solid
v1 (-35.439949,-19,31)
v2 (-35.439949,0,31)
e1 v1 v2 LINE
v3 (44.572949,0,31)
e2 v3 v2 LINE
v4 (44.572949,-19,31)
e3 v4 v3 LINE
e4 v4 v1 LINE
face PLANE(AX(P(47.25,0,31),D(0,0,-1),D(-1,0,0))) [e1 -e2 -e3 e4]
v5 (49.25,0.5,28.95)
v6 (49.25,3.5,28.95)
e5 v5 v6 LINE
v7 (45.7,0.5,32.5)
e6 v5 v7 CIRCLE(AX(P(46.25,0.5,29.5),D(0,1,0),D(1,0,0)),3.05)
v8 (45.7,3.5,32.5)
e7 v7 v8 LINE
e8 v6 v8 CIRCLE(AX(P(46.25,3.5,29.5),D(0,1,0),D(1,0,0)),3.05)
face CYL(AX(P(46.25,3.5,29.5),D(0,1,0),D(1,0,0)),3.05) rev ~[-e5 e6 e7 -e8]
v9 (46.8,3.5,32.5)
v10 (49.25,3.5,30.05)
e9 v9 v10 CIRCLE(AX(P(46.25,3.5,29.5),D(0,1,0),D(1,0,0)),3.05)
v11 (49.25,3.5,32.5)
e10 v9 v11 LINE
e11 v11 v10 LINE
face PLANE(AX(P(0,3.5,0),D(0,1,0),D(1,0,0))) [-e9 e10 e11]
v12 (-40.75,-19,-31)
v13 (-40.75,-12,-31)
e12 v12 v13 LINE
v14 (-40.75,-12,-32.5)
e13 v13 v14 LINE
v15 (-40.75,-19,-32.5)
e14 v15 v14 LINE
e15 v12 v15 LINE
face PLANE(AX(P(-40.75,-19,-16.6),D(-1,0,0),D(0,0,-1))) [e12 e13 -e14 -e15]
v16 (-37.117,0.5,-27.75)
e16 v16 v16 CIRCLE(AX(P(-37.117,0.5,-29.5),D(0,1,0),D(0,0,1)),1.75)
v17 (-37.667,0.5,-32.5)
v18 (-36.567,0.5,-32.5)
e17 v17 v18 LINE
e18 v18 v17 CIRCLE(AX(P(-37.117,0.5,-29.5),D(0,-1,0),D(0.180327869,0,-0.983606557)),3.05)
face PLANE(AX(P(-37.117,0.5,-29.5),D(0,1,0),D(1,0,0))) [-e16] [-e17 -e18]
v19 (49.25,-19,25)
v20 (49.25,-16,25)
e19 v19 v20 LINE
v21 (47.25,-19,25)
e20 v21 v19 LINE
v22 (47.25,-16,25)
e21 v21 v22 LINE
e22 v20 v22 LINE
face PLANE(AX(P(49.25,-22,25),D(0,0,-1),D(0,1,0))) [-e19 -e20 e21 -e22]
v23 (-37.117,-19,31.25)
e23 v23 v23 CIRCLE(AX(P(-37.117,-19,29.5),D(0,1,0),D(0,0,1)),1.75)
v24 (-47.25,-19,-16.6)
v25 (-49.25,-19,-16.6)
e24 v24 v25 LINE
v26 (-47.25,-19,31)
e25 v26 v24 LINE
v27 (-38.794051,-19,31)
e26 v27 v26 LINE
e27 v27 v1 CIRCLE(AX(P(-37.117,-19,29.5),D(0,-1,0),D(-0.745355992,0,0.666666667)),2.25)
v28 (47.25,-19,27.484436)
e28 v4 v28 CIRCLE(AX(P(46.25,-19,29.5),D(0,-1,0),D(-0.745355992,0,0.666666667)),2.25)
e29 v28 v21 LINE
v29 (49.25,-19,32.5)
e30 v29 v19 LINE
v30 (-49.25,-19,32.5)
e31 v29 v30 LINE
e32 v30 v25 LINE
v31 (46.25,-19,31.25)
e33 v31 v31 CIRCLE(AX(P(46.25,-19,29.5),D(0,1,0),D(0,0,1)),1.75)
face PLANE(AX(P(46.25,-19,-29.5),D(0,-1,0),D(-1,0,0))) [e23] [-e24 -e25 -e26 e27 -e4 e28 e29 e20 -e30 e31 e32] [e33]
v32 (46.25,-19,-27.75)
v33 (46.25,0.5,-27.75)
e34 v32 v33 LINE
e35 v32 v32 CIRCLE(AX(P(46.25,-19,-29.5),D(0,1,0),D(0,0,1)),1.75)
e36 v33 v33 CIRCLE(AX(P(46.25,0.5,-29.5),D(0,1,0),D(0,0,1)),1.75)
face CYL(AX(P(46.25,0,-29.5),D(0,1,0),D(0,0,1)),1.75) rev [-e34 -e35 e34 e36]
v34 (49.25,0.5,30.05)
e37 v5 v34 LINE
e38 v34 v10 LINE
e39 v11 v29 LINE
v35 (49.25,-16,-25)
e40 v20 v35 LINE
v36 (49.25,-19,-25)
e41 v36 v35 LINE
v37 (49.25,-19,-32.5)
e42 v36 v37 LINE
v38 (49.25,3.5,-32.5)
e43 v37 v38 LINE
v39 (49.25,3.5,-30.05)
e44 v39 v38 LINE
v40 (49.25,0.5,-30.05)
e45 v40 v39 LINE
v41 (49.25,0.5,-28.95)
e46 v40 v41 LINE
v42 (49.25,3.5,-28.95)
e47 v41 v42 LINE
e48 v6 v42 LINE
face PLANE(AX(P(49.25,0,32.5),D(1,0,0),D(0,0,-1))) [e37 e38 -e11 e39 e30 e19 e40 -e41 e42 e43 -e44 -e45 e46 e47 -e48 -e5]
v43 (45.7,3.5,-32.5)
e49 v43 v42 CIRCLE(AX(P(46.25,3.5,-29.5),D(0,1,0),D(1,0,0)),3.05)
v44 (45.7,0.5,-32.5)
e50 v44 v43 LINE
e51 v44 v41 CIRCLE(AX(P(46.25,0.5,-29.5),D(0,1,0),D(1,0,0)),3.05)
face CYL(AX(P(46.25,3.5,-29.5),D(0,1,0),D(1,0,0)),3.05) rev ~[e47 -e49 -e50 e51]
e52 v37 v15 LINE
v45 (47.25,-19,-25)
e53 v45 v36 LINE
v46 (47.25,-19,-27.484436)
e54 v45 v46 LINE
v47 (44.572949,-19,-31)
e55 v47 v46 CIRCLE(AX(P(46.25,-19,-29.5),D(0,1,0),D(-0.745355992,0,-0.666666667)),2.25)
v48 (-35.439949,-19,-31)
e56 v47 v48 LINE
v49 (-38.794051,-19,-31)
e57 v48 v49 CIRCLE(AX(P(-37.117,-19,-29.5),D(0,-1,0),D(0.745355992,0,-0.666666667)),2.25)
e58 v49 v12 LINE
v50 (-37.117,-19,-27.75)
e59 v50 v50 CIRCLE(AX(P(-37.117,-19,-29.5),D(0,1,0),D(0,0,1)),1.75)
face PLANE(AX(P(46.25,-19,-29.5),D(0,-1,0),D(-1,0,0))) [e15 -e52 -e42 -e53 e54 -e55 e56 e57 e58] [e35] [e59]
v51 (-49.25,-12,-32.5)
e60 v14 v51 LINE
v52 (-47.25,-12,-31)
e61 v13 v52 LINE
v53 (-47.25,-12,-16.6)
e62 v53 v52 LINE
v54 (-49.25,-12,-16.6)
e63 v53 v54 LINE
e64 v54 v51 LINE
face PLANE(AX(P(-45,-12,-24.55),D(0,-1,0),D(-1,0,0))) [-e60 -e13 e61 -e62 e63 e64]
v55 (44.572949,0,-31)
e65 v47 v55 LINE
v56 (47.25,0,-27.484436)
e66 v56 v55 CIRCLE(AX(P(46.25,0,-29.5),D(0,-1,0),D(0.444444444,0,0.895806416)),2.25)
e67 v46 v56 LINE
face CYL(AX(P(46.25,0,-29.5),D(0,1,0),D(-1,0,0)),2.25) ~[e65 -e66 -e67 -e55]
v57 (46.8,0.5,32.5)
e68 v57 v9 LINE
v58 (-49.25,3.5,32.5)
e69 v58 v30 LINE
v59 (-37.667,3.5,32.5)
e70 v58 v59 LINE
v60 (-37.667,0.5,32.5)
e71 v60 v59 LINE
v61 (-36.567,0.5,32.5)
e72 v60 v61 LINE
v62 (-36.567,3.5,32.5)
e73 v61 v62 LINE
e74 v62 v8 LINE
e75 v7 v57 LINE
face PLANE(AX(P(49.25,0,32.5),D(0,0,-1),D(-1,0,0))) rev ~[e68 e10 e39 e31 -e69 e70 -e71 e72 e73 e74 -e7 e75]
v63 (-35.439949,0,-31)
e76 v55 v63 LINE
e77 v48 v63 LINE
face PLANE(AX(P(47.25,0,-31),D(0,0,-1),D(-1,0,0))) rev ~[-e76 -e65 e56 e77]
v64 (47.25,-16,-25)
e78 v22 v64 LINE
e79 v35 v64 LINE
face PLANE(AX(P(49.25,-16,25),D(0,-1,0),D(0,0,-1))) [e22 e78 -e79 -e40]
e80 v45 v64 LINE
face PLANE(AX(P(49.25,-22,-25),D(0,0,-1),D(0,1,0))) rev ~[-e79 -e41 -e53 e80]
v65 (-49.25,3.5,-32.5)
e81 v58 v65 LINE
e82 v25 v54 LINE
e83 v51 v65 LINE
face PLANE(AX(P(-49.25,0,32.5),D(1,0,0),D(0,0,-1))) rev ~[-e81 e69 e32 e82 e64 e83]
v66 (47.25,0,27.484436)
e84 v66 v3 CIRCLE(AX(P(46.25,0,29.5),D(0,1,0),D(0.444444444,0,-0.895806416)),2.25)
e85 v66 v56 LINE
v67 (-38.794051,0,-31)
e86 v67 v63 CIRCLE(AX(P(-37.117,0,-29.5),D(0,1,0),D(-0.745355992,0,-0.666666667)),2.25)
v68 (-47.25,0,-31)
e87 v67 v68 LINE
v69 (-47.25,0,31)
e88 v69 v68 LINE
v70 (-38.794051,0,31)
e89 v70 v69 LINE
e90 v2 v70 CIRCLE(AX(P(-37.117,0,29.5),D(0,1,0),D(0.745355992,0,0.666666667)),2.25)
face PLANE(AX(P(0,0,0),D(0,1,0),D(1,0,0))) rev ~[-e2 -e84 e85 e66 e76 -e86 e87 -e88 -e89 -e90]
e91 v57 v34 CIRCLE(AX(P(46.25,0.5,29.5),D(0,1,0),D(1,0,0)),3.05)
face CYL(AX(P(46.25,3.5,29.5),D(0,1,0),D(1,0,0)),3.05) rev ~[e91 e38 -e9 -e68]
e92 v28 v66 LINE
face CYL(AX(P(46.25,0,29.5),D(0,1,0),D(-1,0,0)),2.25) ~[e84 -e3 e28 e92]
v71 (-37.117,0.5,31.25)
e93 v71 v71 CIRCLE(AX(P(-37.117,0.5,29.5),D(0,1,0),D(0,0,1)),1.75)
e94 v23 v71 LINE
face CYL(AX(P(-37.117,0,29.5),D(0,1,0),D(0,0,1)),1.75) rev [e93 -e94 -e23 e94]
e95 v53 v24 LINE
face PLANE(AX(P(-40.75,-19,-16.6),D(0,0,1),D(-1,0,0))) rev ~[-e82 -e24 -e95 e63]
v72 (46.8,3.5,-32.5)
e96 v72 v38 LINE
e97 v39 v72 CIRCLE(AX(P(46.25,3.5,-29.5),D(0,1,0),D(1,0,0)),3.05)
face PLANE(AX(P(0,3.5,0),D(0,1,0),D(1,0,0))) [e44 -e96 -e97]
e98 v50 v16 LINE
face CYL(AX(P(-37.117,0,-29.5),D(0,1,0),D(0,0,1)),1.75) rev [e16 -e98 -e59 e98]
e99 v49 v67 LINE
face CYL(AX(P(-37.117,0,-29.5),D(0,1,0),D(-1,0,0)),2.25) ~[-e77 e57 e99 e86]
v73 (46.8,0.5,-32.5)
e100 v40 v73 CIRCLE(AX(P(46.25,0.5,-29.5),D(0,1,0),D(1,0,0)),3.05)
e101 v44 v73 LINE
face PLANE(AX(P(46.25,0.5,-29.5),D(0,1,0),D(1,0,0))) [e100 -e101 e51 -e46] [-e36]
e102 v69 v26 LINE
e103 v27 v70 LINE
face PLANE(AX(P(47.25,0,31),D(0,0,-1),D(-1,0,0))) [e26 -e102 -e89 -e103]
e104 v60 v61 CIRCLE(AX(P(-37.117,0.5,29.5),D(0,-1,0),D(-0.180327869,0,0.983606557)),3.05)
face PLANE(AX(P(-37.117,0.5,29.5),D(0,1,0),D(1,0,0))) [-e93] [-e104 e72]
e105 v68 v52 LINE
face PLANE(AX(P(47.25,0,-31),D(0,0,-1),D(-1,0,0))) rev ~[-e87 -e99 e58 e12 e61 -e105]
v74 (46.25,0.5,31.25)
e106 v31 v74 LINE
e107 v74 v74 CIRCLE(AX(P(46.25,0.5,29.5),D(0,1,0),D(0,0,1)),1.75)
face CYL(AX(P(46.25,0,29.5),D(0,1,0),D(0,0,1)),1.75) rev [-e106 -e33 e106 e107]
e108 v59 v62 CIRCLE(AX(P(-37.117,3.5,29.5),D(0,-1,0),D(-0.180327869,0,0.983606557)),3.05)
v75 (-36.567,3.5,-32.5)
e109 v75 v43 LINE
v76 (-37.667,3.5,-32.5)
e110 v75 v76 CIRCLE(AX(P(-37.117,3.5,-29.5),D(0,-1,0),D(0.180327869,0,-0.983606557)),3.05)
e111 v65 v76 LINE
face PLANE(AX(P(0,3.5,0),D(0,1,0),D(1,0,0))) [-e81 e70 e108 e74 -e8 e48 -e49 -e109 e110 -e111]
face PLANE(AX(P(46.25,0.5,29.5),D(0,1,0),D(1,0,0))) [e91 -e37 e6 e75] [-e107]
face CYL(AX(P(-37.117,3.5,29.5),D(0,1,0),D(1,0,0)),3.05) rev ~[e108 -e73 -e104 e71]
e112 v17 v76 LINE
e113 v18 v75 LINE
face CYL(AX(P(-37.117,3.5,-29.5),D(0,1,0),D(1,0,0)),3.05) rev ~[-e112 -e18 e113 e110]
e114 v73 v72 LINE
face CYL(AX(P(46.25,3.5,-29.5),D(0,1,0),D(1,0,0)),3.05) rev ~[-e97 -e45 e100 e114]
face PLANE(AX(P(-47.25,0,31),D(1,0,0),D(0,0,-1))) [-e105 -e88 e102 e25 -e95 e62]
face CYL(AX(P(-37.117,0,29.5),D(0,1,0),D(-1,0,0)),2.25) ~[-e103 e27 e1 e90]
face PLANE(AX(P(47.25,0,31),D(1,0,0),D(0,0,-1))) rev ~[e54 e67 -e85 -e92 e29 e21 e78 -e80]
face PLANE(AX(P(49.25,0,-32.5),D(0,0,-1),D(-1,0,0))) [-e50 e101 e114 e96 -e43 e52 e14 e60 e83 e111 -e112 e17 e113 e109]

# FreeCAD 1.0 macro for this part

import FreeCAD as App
import Part
import Sketcher
from FreeCAD import Vector
Q = App.Units.Quantity


def add_polygon(sketch, points):
    """Adds a closed chain of lines whose ends are joined by coincident constraints."""
    first, n = sketch.GeometryCount, len(points)
    for a, b in zip(points, points[1:] + points[:1]):
        sketch.addGeometry(Part.LineSegment(App.Vector(*a, 0), App.Vector(*b, 0)), False)
    for i in range(n):
        sketch.addConstraint(Sketcher.Constraint("Coincident", first + i, 2, first + (i + 1) % n, 1))

doc = App.newDocument("Part")
body = doc.addObject("PartDesign::Body", "Body")

# Sketch on XZ plane
sketch1 = body.newObject("Sketcher::SketchObject", "Sketch")
sketch1.AttachmentSupport = (doc.getObject("XZ_Plane"), [""])
sketch1.MapMode = "FlatFace"
add_polygon(sketch1, [(-49, -32), (-49, 32), (49, 32), (49, -32)])  # lines 0-3
sketch1.addConstraint([
    Sketcher.Constraint("Vertical", 0),
    Sketcher.Constraint("Horizontal", 1),
    Sketcher.Constraint("Vertical", 2),
    Sketcher.Constraint("Horizontal", 3),
    Sketcher.Constraint("Symmetric", 0, 2, 2, 2, -1, 1),
    Sketcher.Constraint("DistanceY", 0, 1, 0, 2, Q("65 mm")),
    Sketcher.Constraint("DistanceX", 1, 1, 1, 2, Q("98.5 mm")),
])
pad1 = body.newObject("PartDesign::Pad", "Pad")
pad1.Profile = sketch1
pad1.Length = 3.5
pad1.Reversed = True

# Sketch on XZ plane
sketch2 = body.newObject("Sketcher::SketchObject", "Sketch001")
sketch2.AttachmentSupport = (doc.getObject("XZ_Plane"), [""])
sketch2.MapMode = "FlatFace"
add_polygon(sketch2, [(49, -32), (49, 32), (-49, 32), (-49, -32)])  # lines 0-3
add_polygon(sketch2, [(-47, 31), (47, 31), (47, -31), (-47, -31)])  # lines 4-7
sketch2.addConstraint([
    Sketcher.Constraint("Vertical", 0),
    Sketcher.Constraint("Horizontal", 1),
    Sketcher.Constraint("Vertical", 2),
    Sketcher.Constraint("Horizontal", 3),
    Sketcher.Constraint("Horizontal", 4),
    Sketcher.Constraint("Vertical", 5),
    Sketcher.Constraint("Horizontal", 6),
    Sketcher.Constraint("Vertical", 7),
    Sketcher.Constraint("Symmetric", 0, 2, 2, 2, -1, 1),
    Sketcher.Constraint("Symmetric", 4, 2, 6, 2, -1, 1),
    Sketcher.Constraint("DistanceY", 0, 1, 0, 2, Q("65 mm")),
    Sketcher.Constraint("DistanceY", 5, 2, 5, 1, Q("62 mm")),
    Sketcher.Constraint("DistanceX", 1, 2, 1, 1, Q("98.5 mm")),
    Sketcher.Constraint("DistanceX", 4, 1, 4, 2, Q("94.5 mm")),
])
pad2 = body.newObject("PartDesign::Pad", "Pad001")
pad2.Profile = sketch2
pad2.Length = 19

# Sketch on XZ plane
sketch3 = body.newObject("Sketcher::SketchObject", "Sketch002")
sketch3.AttachmentSupport = (doc.getObject("XZ_Plane"), [""])
sketch3.MapMode = "FlatFace"
sketch3.AttachmentOffset = App.Placement(Vector(0, 0, -3.5), App.Rotation())
sketch3.addGeometry([
    Part.Circle(Vector(46.2, -29.5, 0), Vector(0, 0, 1), 1.8),
    Part.Circle(Vector(46.2, 29.5, 0), Vector(0, 0, 1), 1.8),
    Part.Circle(Vector(-37.1, -29.5, 0), Vector(0, 0, 1), 1.8),
    Part.Circle(Vector(-37.1, 29.5, 0), Vector(0, 0, 1), 1.8),
], False)
sketch3.addConstraint([
    Sketcher.Constraint("Equal", 0, 1),
    Sketcher.Constraint("Equal", 1, 2),
    Sketcher.Constraint("Equal", 2, 3),
    Sketcher.Constraint("Symmetric", 0, 3, 1, 3, -1),
    Sketcher.Constraint("Symmetric", 2, 3, 3, 3, -1),
    Sketcher.Constraint("Horizontal", 0, 3, 2, 3),
    Sketcher.Constraint("Diameter", 0, Q("3.5 mm")),
    Sketcher.Constraint("DistanceY", 0, 3, 1, 3, Q("59 mm")),
    Sketcher.Constraint("DistanceX", -1, 1, 0, 3, Q("46.25 mm")),
    Sketcher.Constraint("DistanceX", 2, 3, -1, 1, Q("37.117 mm")),
])
pocket1 = body.newObject("PartDesign::Pocket", "Pocket")
pocket1.Profile = sketch3
pocket1.Type = "ThroughAll"
pocket1.Reversed = True

# Sketch on XZ plane
sketch4 = body.newObject("Sketcher::SketchObject", "Sketch003")
sketch4.AttachmentSupport = (doc.getObject("XZ_Plane"), [""])
sketch4.MapMode = "FlatFace"
sketch4.addGeometry([
    Part.Circle(Vector(46.2, -29.5, 0), Vector(0, 0, 1), 2.2),  # 0
    Part.Circle(Vector(46.2, -29.5, 0), Vector(0, 0, 1), 1.8),  # 1
    Part.Circle(Vector(-37.1, -29.5, 0), Vector(0, 0, 1), 2.2),  # 2
    Part.Circle(Vector(-37.1, -29.5, 0), Vector(0, 0, 1), 1.8),  # 3
    Part.Circle(Vector(46.2, 29.5, 0), Vector(0, 0, 1), 2.2),  # 4
    Part.Circle(Vector(46.2, 29.5, 0), Vector(0, 0, 1), 1.8),  # 5
    Part.Circle(Vector(-37.1, 29.5, 0), Vector(0, 0, 1), 2.2),  # 6
    Part.Circle(Vector(-37.1, 29.5, 0), Vector(0, 0, 1), 1.8),  # 7
], False)
sketch4.addConstraint([
    Sketcher.Constraint("Coincident", 1, 3, 0, 3),
    Sketcher.Constraint("Coincident", 3, 3, 2, 3),
    Sketcher.Constraint("Coincident", 5, 3, 4, 3),
    Sketcher.Constraint("Coincident", 7, 3, 6, 3),
    Sketcher.Constraint("Equal", 0, 2),
    Sketcher.Constraint("Equal", 1, 3),
    Sketcher.Constraint("Equal", 2, 4),
    Sketcher.Constraint("Equal", 3, 5),
    Sketcher.Constraint("Equal", 4, 6),
    Sketcher.Constraint("Equal", 5, 7),
    Sketcher.Constraint("Symmetric", 0, 3, 4, 3, -1),
    Sketcher.Constraint("Symmetric", 2, 3, 6, 3, -1),
    Sketcher.Constraint("Horizontal", 1, 3, 2, 3),
    Sketcher.Constraint("Diameter", 0, Q("4.5 mm")),
    Sketcher.Constraint("Diameter", 1, Q("3.5 mm")),
    Sketcher.Constraint("DistanceY", 0, 3, 4, 3, Q("59 mm")),
    Sketcher.Constraint("DistanceX", -1, 1, 0, 3, Q("46.25 mm")),
    Sketcher.Constraint("DistanceX", 2, 3, -1, 1, Q("37.117 mm")),
])
pad3 = body.newObject("PartDesign::Pad", "Pad002")
pad3.Profile = sketch4
pad3.Length = 19

# Sketch on XZ plane
sketch5 = body.newObject("Sketcher::SketchObject", "Sketch004")
sketch5.AttachmentSupport = (doc.getObject("XZ_Plane"), [""])
sketch5.MapMode = "FlatFace"
sketch5.AttachmentOffset = App.Placement(Vector(0, 0, 19), App.Rotation())
add_polygon(sketch5, [(-41, -32), (-41, -17), (-49, -17), (-49, -32)])  # lines 0-3
sketch5.addConstraint([
    Sketcher.Constraint("Vertical", 0),
    Sketcher.Constraint("Horizontal", 1),
    Sketcher.Constraint("Vertical", 2),
    Sketcher.Constraint("Horizontal", 3),
    Sketcher.Constraint("DistanceX", 1, 2, 1, 1, Q("8.5 mm")),
    Sketcher.Constraint("DistanceY", 0, 1, 0, 2, Q("15.9 mm")),
    Sketcher.Constraint("DistanceY", 0, 2, -1, 1, Q("16.6 mm")),
    Sketcher.Constraint("DistanceX", 0, 2, -1, 1, Q("40.75 mm")),
])
pocket2 = body.newObject("PartDesign::Pocket", "Pocket001")
pocket2.Profile = sketch5
pocket2.Length = 7

# Sketch on YZ plane
sketch6 = body.newObject("Sketcher::SketchObject", "Sketch005")
sketch6.AttachmentSupport = (doc.getObject("YZ_Plane"), [""])
sketch6.MapMode = "FlatFace"
sketch6.AttachmentOffset = App.Placement(Vector(0, 0, 49.25), App.Rotation())
add_polygon(sketch6, [(-16, 25), (-22, 25), (-22, -25), (-16, -25)])  # lines 0-3
sketch6.addConstraint([
    Sketcher.Constraint("Horizontal", 0),
    Sketcher.Constraint("Vertical", 1),
    Sketcher.Constraint("Horizontal", 2),
    Sketcher.Constraint("Vertical", 3),
    Sketcher.Constraint("DistanceX", 0, 2, 0, 1, Q("6 mm")),
    Sketcher.Constraint("DistanceY", 1, 2, 1, 1, Q("50 mm")),
    Sketcher.Constraint("DistanceX", 0, 2, -1, 1, Q("22 mm")),
    Sketcher.Constraint("DistanceY", -1, 1, 0, 2, Q("25 mm")),
])
pocket3 = body.newObject("PartDesign::Pocket", "Pocket002")
pocket3.Profile = sketch6
pocket3.Length = 7

# Sketch on XZ plane
sketch7 = body.newObject("Sketcher::SketchObject", "Sketch006")
sketch7.AttachmentSupport = (doc.getObject("XZ_Plane"), [""])
sketch7.MapMode = "FlatFace"
sketch7.AttachmentOffset = App.Placement(Vector(0, 0, -3.5), App.Rotation())
sketch7.addGeometry([
    Part.Circle(Vector(-37.1, -29.5, 0), Vector(0, 0, 1), 3),
    Part.Circle(Vector(46.2, -29.5, 0), Vector(0, 0, 1), 3),
    Part.Circle(Vector(46.2, 29.5, 0), Vector(0, 0, 1), 3),
    Part.Circle(Vector(-37.1, 29.5, 0), Vector(0, 0, 1), 3),
], False)
sketch7.addConstraint([
    Sketcher.Constraint("Equal", 0, 1),
    Sketcher.Constraint("Equal", 1, 2),
    Sketcher.Constraint("Equal", 2, 3),
    Sketcher.Constraint("Symmetric", 1, 3, 2, 3, -1),
    Sketcher.Constraint("Symmetric", 0, 3, 3, 3, -1),
    Sketcher.Constraint("Horizontal", 0, 3, 1, 3),
    Sketcher.Constraint("Diameter", 0, Q("6.1 mm")),
    Sketcher.Constraint("DistanceY", 1, 3, 2, 3, Q("59 mm")),
    Sketcher.Constraint("DistanceX", -1, 1, 1, 3, Q("46.25 mm")),
    Sketcher.Constraint("DistanceX", 0, 3, -1, 1, Q("37.117 mm")),
])
pocket4 = body.newObject("PartDesign::Pocket", "Pocket003")
pocket4.Profile = sketch7
pocket4.Length = 3
pocket4.Reversed = True

doc.recompute()
